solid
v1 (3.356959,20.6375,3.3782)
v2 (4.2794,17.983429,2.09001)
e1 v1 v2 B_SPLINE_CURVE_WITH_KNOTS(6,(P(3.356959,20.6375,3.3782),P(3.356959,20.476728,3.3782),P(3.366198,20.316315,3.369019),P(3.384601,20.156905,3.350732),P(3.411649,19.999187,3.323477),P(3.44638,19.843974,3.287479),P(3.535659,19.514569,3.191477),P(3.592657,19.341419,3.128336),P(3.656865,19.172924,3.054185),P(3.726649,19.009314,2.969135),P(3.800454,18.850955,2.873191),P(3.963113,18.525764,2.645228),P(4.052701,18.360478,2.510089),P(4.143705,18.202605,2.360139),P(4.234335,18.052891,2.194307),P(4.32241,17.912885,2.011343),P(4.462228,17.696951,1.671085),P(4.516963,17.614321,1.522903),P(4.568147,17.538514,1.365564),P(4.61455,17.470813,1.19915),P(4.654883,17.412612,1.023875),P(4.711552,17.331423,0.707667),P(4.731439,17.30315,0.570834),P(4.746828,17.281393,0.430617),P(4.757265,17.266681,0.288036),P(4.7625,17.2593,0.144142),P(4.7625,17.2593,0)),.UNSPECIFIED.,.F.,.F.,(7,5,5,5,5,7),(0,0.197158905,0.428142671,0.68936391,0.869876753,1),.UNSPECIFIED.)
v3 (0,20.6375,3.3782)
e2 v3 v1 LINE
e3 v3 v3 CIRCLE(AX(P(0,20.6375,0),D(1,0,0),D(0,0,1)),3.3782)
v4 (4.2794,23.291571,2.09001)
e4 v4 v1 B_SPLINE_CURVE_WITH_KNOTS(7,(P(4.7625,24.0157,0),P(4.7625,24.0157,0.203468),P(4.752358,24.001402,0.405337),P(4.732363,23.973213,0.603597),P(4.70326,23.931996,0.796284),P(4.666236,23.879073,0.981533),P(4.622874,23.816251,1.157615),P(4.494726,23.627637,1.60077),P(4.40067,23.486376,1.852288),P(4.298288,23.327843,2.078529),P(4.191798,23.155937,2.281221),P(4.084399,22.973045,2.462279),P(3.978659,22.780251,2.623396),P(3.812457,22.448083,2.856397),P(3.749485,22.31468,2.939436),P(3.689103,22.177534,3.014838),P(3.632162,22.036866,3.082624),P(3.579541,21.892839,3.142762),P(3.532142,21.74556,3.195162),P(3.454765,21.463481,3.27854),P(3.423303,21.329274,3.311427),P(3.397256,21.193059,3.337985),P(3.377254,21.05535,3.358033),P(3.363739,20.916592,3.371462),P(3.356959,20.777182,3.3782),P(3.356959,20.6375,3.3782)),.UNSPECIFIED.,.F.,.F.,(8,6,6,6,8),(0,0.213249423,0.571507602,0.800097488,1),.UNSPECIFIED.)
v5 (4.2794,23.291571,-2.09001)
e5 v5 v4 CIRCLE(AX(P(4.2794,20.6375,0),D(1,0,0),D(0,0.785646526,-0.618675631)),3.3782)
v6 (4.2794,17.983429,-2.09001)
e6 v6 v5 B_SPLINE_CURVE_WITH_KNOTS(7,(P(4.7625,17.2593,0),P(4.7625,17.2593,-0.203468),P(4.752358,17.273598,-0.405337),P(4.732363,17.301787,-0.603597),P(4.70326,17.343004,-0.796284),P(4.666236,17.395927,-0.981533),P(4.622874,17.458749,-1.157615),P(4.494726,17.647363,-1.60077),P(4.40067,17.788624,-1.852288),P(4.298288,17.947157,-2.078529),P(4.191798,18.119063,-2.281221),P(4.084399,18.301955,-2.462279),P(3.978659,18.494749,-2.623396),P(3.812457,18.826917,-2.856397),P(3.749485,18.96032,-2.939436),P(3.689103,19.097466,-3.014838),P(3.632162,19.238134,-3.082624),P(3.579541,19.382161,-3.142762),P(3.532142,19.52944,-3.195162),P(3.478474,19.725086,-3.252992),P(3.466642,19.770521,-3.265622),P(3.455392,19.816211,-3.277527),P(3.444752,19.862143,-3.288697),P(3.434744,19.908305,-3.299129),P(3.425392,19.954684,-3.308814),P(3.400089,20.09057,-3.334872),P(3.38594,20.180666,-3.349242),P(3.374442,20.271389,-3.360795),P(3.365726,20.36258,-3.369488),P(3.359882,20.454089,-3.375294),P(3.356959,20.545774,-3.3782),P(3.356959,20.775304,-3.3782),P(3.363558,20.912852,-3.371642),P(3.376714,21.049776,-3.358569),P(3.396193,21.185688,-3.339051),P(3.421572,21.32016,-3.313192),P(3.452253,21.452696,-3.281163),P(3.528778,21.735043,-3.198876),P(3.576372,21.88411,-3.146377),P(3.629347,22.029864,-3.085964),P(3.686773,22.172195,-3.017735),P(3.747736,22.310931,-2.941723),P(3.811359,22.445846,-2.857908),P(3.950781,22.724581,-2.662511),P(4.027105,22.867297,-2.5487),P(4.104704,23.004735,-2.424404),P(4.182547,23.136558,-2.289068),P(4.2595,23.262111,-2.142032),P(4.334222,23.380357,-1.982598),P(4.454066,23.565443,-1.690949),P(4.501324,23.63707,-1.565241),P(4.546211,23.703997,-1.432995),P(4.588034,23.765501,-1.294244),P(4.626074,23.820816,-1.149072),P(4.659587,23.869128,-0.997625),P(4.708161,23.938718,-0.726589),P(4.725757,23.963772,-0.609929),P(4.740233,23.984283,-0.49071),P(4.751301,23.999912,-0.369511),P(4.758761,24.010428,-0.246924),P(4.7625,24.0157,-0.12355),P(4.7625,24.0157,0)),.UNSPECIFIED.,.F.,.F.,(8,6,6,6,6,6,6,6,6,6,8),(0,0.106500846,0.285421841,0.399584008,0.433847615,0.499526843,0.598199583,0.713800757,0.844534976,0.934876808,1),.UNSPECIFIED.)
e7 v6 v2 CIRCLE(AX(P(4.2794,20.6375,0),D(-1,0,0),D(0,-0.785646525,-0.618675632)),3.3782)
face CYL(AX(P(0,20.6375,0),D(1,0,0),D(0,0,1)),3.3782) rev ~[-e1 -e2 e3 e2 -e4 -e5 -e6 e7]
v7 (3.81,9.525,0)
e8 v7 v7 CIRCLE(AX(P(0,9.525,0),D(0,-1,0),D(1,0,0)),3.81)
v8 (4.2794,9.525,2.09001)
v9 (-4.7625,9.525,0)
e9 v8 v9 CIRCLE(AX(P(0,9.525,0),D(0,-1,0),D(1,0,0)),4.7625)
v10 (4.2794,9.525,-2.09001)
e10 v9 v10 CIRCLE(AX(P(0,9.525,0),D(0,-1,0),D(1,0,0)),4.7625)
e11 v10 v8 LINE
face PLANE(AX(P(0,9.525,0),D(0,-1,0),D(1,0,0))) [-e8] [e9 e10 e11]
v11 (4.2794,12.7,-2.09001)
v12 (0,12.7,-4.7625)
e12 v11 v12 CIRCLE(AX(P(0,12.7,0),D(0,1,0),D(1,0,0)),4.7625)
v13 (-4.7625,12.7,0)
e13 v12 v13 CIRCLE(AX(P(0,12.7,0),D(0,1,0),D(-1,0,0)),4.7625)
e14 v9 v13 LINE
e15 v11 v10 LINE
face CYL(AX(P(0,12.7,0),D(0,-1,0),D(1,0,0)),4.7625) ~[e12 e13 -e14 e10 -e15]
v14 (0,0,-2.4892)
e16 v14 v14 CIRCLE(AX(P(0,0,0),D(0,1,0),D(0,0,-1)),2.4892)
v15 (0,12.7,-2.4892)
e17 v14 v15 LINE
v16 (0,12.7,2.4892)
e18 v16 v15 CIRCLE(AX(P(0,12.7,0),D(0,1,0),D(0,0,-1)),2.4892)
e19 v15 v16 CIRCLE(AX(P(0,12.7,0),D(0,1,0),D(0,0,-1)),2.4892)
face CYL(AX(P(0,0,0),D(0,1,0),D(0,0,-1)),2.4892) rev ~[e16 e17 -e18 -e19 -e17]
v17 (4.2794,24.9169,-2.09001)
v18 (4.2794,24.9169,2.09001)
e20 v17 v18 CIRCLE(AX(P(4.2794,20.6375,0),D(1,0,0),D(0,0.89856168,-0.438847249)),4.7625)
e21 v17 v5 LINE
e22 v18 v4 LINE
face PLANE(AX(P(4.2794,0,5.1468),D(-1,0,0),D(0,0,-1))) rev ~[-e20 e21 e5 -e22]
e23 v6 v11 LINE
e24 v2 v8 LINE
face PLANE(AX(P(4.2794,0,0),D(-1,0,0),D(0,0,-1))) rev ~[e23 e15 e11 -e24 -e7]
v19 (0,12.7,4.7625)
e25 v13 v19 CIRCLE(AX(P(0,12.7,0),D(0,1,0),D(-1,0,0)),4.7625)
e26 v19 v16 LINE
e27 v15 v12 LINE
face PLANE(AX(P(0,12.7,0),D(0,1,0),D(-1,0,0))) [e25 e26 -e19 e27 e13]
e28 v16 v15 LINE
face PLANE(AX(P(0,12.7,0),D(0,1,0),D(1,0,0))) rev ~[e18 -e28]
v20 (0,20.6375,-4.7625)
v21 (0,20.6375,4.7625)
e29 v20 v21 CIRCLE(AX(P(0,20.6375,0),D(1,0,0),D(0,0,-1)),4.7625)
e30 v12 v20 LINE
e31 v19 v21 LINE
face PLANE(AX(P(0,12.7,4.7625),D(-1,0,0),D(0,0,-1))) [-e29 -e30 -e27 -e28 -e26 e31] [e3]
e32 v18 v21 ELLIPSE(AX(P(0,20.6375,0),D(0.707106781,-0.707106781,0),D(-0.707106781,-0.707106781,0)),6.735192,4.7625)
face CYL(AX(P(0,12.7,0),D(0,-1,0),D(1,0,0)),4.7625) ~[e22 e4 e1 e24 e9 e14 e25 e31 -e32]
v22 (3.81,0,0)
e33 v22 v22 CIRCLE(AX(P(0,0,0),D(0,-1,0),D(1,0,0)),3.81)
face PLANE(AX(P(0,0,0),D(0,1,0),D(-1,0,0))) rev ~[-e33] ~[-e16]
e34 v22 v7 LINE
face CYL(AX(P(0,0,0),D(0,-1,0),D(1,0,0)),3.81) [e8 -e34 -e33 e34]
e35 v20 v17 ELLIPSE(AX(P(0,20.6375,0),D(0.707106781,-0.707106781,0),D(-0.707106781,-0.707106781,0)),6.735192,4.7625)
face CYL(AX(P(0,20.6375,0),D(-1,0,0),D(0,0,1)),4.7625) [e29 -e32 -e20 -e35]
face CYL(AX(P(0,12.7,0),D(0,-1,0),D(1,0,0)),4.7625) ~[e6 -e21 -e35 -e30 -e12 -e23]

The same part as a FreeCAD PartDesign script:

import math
import FreeCAD as App
import Part
import Sketcher
Q = App.Units.Quantity


def add_polygon(sketch, points):
    """Adds a closed chain of lines whose ends are joined by coincident constraints."""
    first, n = sketch.GeometryCount, len(points)
    for a, b in zip(points, points[1:] + points[:1]):
        sketch.addGeometry(Part.LineSegment(App.Vector(*a, 0), App.Vector(*b, 0)), False)
    for i in range(n):
        sketch.addConstraint(Sketcher.Constraint("Coincident", first + i, 2, first + (i + 1) % n, 1))

doc = App.newDocument("Part")
body = doc.addObject("PartDesign::Body", "Body")

# Sketch on XZ plane
sketch1 = doc.addObject("Sketcher::SketchObject", "Sketch")
body.addObject(sketch1)
sketch1.AttachmentSupport = (doc.XZ_Plane, [""])
sketch1.MapMode = "FlatFace"
sketch1.addGeometry(Part.Circle(App.Vector(0, 0, 0), App.Vector(0, 0, 1), 4.8), False)
sketch1.addConstraint([
    Sketcher.Constraint("Coincident", 0, 3, -1, 1),
    Sketcher.Constraint("Diameter", 0, Q("0.375 in")),
])
pad1 = doc.addObject("PartDesign::Pad", "Pad")
body.addObject(pad1)
pad1.Profile = sketch1
pad1.Length = Q("0.5 in")
pad1.Reversed = True

# Sketch on XZ plane
sketch2 = doc.addObject("Sketcher::SketchObject", "Sketch001")
body.addObject(sketch2)
sketch2.AttachmentSupport = (doc.XZ_Plane, [""])
sketch2.MapMode = "FlatFace"
sketch2.addGeometry(Part.Circle(App.Vector(0, 0, 0), App.Vector(0, 0, 1), 2.5), False)
sketch2.addConstraint([
    Sketcher.Constraint("Coincident", 0, 3, -1, 1),
    Sketcher.Constraint("Diameter", 0, Q("0.196 in")),
])
doc.recompute()
hole = doc.addObject("PartDesign::Hole", "Hole")
body.addObject(hole)
hole.Profile = sketch2
hole.ThreadType = "None"
hole.Diameter = Q("0.196 in")
hole.DepthType = "Dimension"
hole.Depth = Q("0.75 in")
hole.DrillPoint = "Angled"
hole.DrillPointAngle = 118

# Sketch on XZ plane
sketch3 = doc.addObject("Sketcher::SketchObject", "Sketch002")
body.addObject(sketch3)
sketch3.AttachmentSupport = (doc.XZ_Plane, [""])
sketch3.MapMode = "FlatFace"
sketch3.AttachmentOffset = App.Placement(App.Vector(0, 0, -0.5 * 25.4), App.Rotation())
sketch3.addGeometry([
    Part.ArcOfCircle(Part.Circle(App.Vector(0, 0, 0), App.Vector(0, 0, 1), 4.8), math.radians(-90), math.radians(90)),
    Part.LineSegment(App.Vector(0, -4.8, 0), App.Vector(0, 4.8, 0)),
], False)
sketch3.addConstraint([
    Sketcher.Constraint("Coincident", 0, 1, 1, 1),
    Sketcher.Constraint("Coincident", 1, 2, 0, 2),
    Sketcher.Constraint("Vertical", 1),
    Sketcher.Constraint("Coincident", 0, 3, -1, 1),
    Sketcher.Constraint("PointOnObject", 0, 1, -2),
    Sketcher.Constraint("Radius", 0, Q("0.1875 in")),
])
pad2 = doc.addObject("PartDesign::Pad", "Pad001")
body.addObject(pad2)
pad2.Profile = sketch3
pad2.Length = Q("0.5 in")
pad2.Reversed = True

# Sketch on YZ plane
sketch4 = doc.addObject("Sketcher::SketchObject", "Sketch003")
body.addObject(sketch4)
sketch4.AttachmentSupport = (doc.YZ_Plane, [""])
sketch4.MapMode = "FlatFace"
sketch4.addGeometry([
    Part.LineSegment(App.Vector(25.4, -4.8, 0), App.Vector(20.6, -4.8, 0)),  # 0
    Part.ArcOfCircle(Part.Circle(App.Vector(20.6, 0, 0), App.Vector(0, 0, 1), 4.8), math.radians(-90), math.radians(0)),  # 1
    Part.LineSegment(App.Vector(25.4, 0, 0), App.Vector(25.4, -4.8, 0)),  # 2
    Part.LineSegment(App.Vector(25.4, 4.8, 0), App.Vector(25.4, 0, 0)),  # 3
    Part.ArcOfCircle(Part.Circle(App.Vector(20.6, 0, 0), App.Vector(0, 0, 1), 4.8), math.radians(0), math.radians(90)),  # 4
    Part.LineSegment(App.Vector(20.6, 4.8, 0), App.Vector(25.4, 4.8, 0)),  # 5
], False)
sketch4.addConstraint([
    Sketcher.Constraint("Tangent", 0, 2, 1, 1),
    Sketcher.Constraint("Tangent", 1, 2, 2, 1),
    Sketcher.Constraint("Coincident", 2, 2, 0, 1),
    Sketcher.Constraint("Tangent", 3, 2, 4, 1),
    Sketcher.Constraint("Tangent", 4, 2, 5, 1),
    Sketcher.Constraint("Coincident", 5, 2, 3, 1),
    Sketcher.Constraint("Horizontal", 0),
    Sketcher.Constraint("Vertical", 2),
    Sketcher.Constraint("Vertical", 3),
    Sketcher.Constraint("Horizontal", 5),
    Sketcher.Constraint("Coincident", 4, 3, 1, 3),
    Sketcher.Constraint("Equal", 1, 4),
    Sketcher.Constraint("PointOnObject", 1, 3, -1),
    Sketcher.Constraint("DistanceX", -1, 1, 1, 2, Q("1 in")),
    Sketcher.Constraint("Radius", 1, Q("0.1875 in")),
])
pocket1 = doc.addObject("PartDesign::Pocket", "Pocket")
body.addObject(pocket1)
pocket1.Profile = sketch4
pocket1.Length = Q("0.5 in")
pocket1.Reversed = True

# Sketch on YZ plane
sketch5 = doc.addObject("Sketcher::SketchObject", "Sketch004")
body.addObject(sketch5)
sketch5.AttachmentSupport = (doc.YZ_Plane, [""])
sketch5.MapMode = "FlatFace"
sketch5.addGeometry(Part.Circle(App.Vector(20.6, 0, 0), App.Vector(0, 0, 1), 3.4), False)
sketch5.addConstraint([
    Sketcher.Constraint("PointOnObject", 0, 3, -1),
    Sketcher.Constraint("Diameter", 0, Q("0.266 in")),
    Sketcher.Constraint("DistanceX", -1, 1, 0, 3, Q("0.8125 in")),
])
doc.recompute()
hole2 = doc.addObject("PartDesign::Hole", "Hole001")
body.addObject(hole2)
hole2.Profile = sketch5
hole2.ThreadType = "None"
hole2.Diameter = Q("0.266 in")
hole2.DepthType = "Dimension"
hole2.Depth = Q("0.75 in")
hole2.DrillPoint = "Angled"
hole2.DrillPointAngle = 118
hole2.Reversed = True

# Sketch on XZ plane
sketch6 = doc.addObject("Sketcher::SketchObject", "Sketch005")
body.addObject(sketch6)
sketch6.AttachmentSupport = (doc.XZ_Plane, [""])
sketch6.MapMode = "FlatFace"
add_polygon(sketch6, [(5.3, -5.1), (5.3, 5.1), (4.3, 5.1), (4.3, -5.1)])  # lines 0-3
sketch6.addConstraint([
    Sketcher.Constraint("Vertical", 0),
    Sketcher.Constraint("Horizontal", 1),
    Sketcher.Constraint("Vertical", 2),
    Sketcher.Constraint("Horizontal", 3),
    Sketcher.Constraint("DistanceX", 1, 2, 1, 1, Q("1.023 mm")),
    Sketcher.Constraint("DistanceY", 0, 1, 0, 2, Q("10.2936 mm")),
    Sketcher.Constraint("DistanceX", -1, 1, 0, 2, Q("5.3024 mm")),
    Sketcher.Constraint("DistanceY", -1, 1, 0, 2, Q("5.1468 mm")),
])
pocket2 = doc.addObject("PartDesign::Pocket", "Pocket001")
body.addObject(pocket2)
pocket2.Profile = sketch6
pocket2.Length = Q("1 in")

# Sketch on XZ plane
sketch7 = doc.addObject("Sketcher::SketchObject", "Sketch006")
body.addObject(sketch7)
sketch7.AttachmentSupport = (doc.XZ_Plane, [""])
sketch7.MapMode = "FlatFace"
sketch7.addGeometry([
    Part.Circle(App.Vector(0, 0, 0), App.Vector(0, 0, 1), 4.8),
    Part.Circle(App.Vector(0, 0, 0), App.Vector(0, 0, 1), 3.8),
], False)
sketch7.addConstraint([
    Sketcher.Constraint("Coincident", 0, 3, -1, 1),
    Sketcher.Constraint("Coincident", 1, 3, -1, 1),
    Sketcher.Constraint("Diameter", 1, Q("0.3 in")),
    Sketcher.Constraint("Diameter", 0, Q("0.375 in")),
])
pocket3 = doc.addObject("PartDesign::Pocket", "Pocket002")
body.addObject(pocket3)
pocket3.Profile = sketch7
pocket3.Length = Q("0.375 in")

doc.recompute()
